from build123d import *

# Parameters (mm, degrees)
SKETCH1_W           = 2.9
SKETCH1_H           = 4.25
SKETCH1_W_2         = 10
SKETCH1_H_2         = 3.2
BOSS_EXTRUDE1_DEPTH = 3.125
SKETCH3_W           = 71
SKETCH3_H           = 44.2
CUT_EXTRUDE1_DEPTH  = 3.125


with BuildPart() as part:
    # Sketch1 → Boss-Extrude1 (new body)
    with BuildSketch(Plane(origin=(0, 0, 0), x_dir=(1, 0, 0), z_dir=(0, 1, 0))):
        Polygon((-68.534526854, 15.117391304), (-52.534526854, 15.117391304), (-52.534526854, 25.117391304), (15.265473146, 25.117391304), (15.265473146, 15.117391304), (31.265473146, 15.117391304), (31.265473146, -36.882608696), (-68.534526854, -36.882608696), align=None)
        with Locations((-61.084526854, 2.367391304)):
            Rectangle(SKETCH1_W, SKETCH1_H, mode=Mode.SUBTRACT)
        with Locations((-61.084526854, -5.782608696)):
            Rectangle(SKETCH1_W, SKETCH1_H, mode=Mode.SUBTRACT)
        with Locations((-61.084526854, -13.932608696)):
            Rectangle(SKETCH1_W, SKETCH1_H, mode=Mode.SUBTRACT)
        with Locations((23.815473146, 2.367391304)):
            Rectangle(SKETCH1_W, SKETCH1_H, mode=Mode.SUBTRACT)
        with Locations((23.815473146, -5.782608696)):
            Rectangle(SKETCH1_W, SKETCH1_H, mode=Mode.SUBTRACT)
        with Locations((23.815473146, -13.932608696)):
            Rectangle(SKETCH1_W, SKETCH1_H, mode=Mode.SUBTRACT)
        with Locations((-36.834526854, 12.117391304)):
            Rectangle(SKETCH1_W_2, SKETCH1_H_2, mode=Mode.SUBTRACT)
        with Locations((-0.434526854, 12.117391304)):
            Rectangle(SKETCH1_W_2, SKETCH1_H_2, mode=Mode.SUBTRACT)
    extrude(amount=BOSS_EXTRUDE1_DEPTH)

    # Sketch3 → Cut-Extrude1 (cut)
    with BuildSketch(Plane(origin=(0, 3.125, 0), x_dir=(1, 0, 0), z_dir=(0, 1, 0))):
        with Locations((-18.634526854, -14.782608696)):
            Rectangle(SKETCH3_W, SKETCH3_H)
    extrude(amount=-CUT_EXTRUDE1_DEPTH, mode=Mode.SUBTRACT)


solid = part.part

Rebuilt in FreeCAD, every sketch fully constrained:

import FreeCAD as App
import Part
import Sketcher

V = App.Vector
Q = App.Units.Quantity

doc = App.newDocument("Part")
body = doc.addObject("PartDesign::Body", "Body")

# Sketch on XZ plane
sketch1 = doc.addObject("Sketcher::SketchObject", "Sketch")
body.addObject(sketch1)
sketch1.AttachmentSupport = (doc.XZ_Plane, [""])
sketch1.MapMode = "FlatFace"
sketch1.addGeometry(Part.LineSegment(V(-52.5, -15.1, 0), V(-68.5, -15.1, 0)), False)
sketch1.addGeometry(Part.LineSegment(V(-68.5, -15.1, 0), V(-68.5, 36.9, 0)), False)
sketch1.addGeometry(Part.LineSegment(V(-68.5, 36.9, 0), V(31.3, 36.9, 0)), False)
sketch1.addGeometry(Part.LineSegment(V(31.3, 36.9, 0), V(31.3, -15.1, 0)), False)
sketch1.addGeometry(Part.LineSegment(V(31.3, -15.1, 0), V(15.3, -15.1, 0)), False)
sketch1.addGeometry(Part.LineSegment(V(15.3, -15.1, 0), V(15.3, -25.1, 0)), False)
sketch1.addGeometry(Part.LineSegment(V(15.3, -25.1, 0), V(-52.5, -25.1, 0)), False)
sketch1.addGeometry(Part.LineSegment(V(-52.5, -25.1, 0), V(-52.5, -15.1, 0)), False)
sketch1.addGeometry(Part.LineSegment(V(22.4, 16.1, 0), V(22.4, 11.8, 0)), False)
sketch1.addGeometry(Part.LineSegment(V(22.4, 11.8, 0), V(25.3, 11.8, 0)), False)
sketch1.addGeometry(Part.LineSegment(V(25.3, 11.8, 0), V(25.3, 16.1, 0)), False)
sketch1.addGeometry(Part.LineSegment(V(25.3, 16.1, 0), V(22.4, 16.1, 0)), False)
sketch1.addGeometry(Part.LineSegment(V(22.4, 7.9, 0), V(22.4, 3.7, 0)), False)
sketch1.addGeometry(Part.LineSegment(V(22.4, 3.7, 0), V(25.3, 3.7, 0)), False)
sketch1.addGeometry(Part.LineSegment(V(25.3, 3.7, 0), V(25.3, 7.9, 0)), False)
sketch1.addGeometry(Part.LineSegment(V(25.3, 7.9, 0), V(22.4, 7.9, 0)), False)
sketch1.addGeometry(Part.LineSegment(V(-62.5, 16.1, 0), V(-62.5, 11.8, 0)), False)
sketch1.addGeometry(Part.LineSegment(V(-62.5, 11.8, 0), V(-59.6, 11.8, 0)), False)
sketch1.addGeometry(Part.LineSegment(V(-59.6, 11.8, 0), V(-59.6, 16.1, 0)), False)
sketch1.addGeometry(Part.LineSegment(V(-59.6, 16.1, 0), V(-62.5, 16.1, 0)), False)
sketch1.addGeometry(Part.LineSegment(V(-62.5, 7.9, 0), V(-62.5, 3.7, 0)), False)
sketch1.addGeometry(Part.LineSegment(V(-62.5, 3.7, 0), V(-59.6, 3.7, 0)), False)
sketch1.addGeometry(Part.LineSegment(V(-59.6, 3.7, 0), V(-59.6, 7.9, 0)), False)
sketch1.addGeometry(Part.LineSegment(V(-59.6, 7.9, 0), V(-62.5, 7.9, 0)), False)
sketch1.addGeometry(Part.LineSegment(V(22.4, -0.2, 0), V(22.4, -4.5, 0)), False)
sketch1.addGeometry(Part.LineSegment(V(22.4, -4.5, 0), V(25.3, -4.5, 0)), False)
sketch1.addGeometry(Part.LineSegment(V(25.3, -4.5, 0), V(25.3, -0.2, 0)), False)
sketch1.addGeometry(Part.LineSegment(V(25.3, -0.2, 0), V(22.4, -0.2, 0)), False)
sketch1.addGeometry(Part.LineSegment(V(-5.4, -10.5, 0), V(-5.4, -13.7, 0)), False)
sketch1.addGeometry(Part.LineSegment(V(-5.4, -13.7, 0), V(4.6, -13.7, 0)), False)
sketch1.addGeometry(Part.LineSegment(V(4.6, -13.7, 0), V(4.6, -10.5, 0)), False)
sketch1.addGeometry(Part.LineSegment(V(4.6, -10.5, 0), V(-5.4, -10.5, 0)), False)
sketch1.addGeometry(Part.LineSegment(V(-62.5, -0.2, 0), V(-62.5, -4.5, 0)), False)
sketch1.addGeometry(Part.LineSegment(V(-62.5, -4.5, 0), V(-59.6, -4.5, 0)), False)
sketch1.addGeometry(Part.LineSegment(V(-59.6, -4.5, 0), V(-59.6, -0.2, 0)), False)
sketch1.addGeometry(Part.LineSegment(V(-59.6, -0.2, 0), V(-62.5, -0.2, 0)), False)
sketch1.addGeometry(Part.LineSegment(V(-41.8, -10.5, 0), V(-41.8, -13.7, 0)), False)
sketch1.addGeometry(Part.LineSegment(V(-41.8, -13.7, 0), V(-31.8, -13.7, 0)), False)
sketch1.addGeometry(Part.LineSegment(V(-31.8, -13.7, 0), V(-31.8, -10.5, 0)), False)
sketch1.addGeometry(Part.LineSegment(V(-31.8, -10.5, 0), V(-41.8, -10.5, 0)), False)
sketch1.addConstraint(Sketcher.Constraint("Coincident", 0, 2, 1, 1))
sketch1.addConstraint(Sketcher.Constraint("Coincident", 1, 2, 2, 1))
sketch1.addConstraint(Sketcher.Constraint("Coincident", 2, 2, 3, 1))
sketch1.addConstraint(Sketcher.Constraint("Coincident", 3, 2, 4, 1))
sketch1.addConstraint(Sketcher.Constraint("Coincident", 4, 2, 5, 1))
sketch1.addConstraint(Sketcher.Constraint("Coincident", 5, 2, 6, 1))
sketch1.addConstraint(Sketcher.Constraint("Coincident", 6, 2, 7, 1))
sketch1.addConstraint(Sketcher.Constraint("Coincident", 7, 2, 0, 1))
sketch1.addConstraint(Sketcher.Constraint("Coincident", 8, 2, 9, 1))
sketch1.addConstraint(Sketcher.Constraint("Coincident", 9, 2, 10, 1))
sketch1.addConstraint(Sketcher.Constraint("Coincident", 10, 2, 11, 1))
sketch1.addConstraint(Sketcher.Constraint("Coincident", 11, 2, 8, 1))
sketch1.addConstraint(Sketcher.Constraint("Coincident", 12, 2, 13, 1))
sketch1.addConstraint(Sketcher.Constraint("Coincident", 13, 2, 14, 1))
sketch1.addConstraint(Sketcher.Constraint("Coincident", 14, 2, 15, 1))
sketch1.addConstraint(Sketcher.Constraint("Coincident", 15, 2, 12, 1))
sketch1.addConstraint(Sketcher.Constraint("Coincident", 16, 2, 17, 1))
sketch1.addConstraint(Sketcher.Constraint("Coincident", 17, 2, 18, 1))
sketch1.addConstraint(Sketcher.Constraint("Coincident", 18, 2, 19, 1))
sketch1.addConstraint(Sketcher.Constraint("Coincident", 19, 2, 16, 1))
sketch1.addConstraint(Sketcher.Constraint("Coincident", 20, 2, 21, 1))
sketch1.addConstraint(Sketcher.Constraint("Coincident", 21, 2, 22, 1))
sketch1.addConstraint(Sketcher.Constraint("Coincident", 22, 2, 23, 1))
sketch1.addConstraint(Sketcher.Constraint("Coincident", 23, 2, 20, 1))
sketch1.addConstraint(Sketcher.Constraint("Coincident", 24, 2, 25, 1))
sketch1.addConstraint(Sketcher.Constraint("Coincident", 25, 2, 26, 1))
sketch1.addConstraint(Sketcher.Constraint("Coincident", 26, 2, 27, 1))
sketch1.addConstraint(Sketcher.Constraint("Coincident", 27, 2, 24, 1))
sketch1.addConstraint(Sketcher.Constraint("Coincident", 28, 2, 29, 1))
sketch1.addConstraint(Sketcher.Constraint("Coincident", 29, 2, 30, 1))
sketch1.addConstraint(Sketcher.Constraint("Coincident", 30, 2, 31, 1))
sketch1.addConstraint(Sketcher.Constraint("Coincident", 31, 2, 28, 1))
sketch1.addConstraint(Sketcher.Constraint("Coincident", 32, 2, 33, 1))
sketch1.addConstraint(Sketcher.Constraint("Coincident", 33, 2, 34, 1))
sketch1.addConstraint(Sketcher.Constraint("Coincident", 34, 2, 35, 1))
sketch1.addConstraint(Sketcher.Constraint("Coincident", 35, 2, 32, 1))
sketch1.addConstraint(Sketcher.Constraint("Coincident", 36, 2, 37, 1))
sketch1.addConstraint(Sketcher.Constraint("Coincident", 37, 2, 38, 1))
sketch1.addConstraint(Sketcher.Constraint("Coincident", 38, 2, 39, 1))
sketch1.addConstraint(Sketcher.Constraint("Coincident", 39, 2, 36, 1))
sketch1.addConstraint(Sketcher.Constraint("Horizontal", 0))
sketch1.addConstraint(Sketcher.Constraint("Vertical", 1))
sketch1.addConstraint(Sketcher.Constraint("Horizontal", 2))
sketch1.addConstraint(Sketcher.Constraint("Vertical", 3))
sketch1.addConstraint(Sketcher.Constraint("Horizontal", 4))
sketch1.addConstraint(Sketcher.Constraint("Vertical", 5))
sketch1.addConstraint(Sketcher.Constraint("Horizontal", 6))
sketch1.addConstraint(Sketcher.Constraint("Vertical", 7))
sketch1.addConstraint(Sketcher.Constraint("Vertical", 8))
sketch1.addConstraint(Sketcher.Constraint("Horizontal", 9))
sketch1.addConstraint(Sketcher.Constraint("Vertical", 10))
sketch1.addConstraint(Sketcher.Constraint("Horizontal", 11))
sketch1.addConstraint(Sketcher.Constraint("Vertical", 12))
sketch1.addConstraint(Sketcher.Constraint("Horizontal", 13))
sketch1.addConstraint(Sketcher.Constraint("Vertical", 14))
sketch1.addConstraint(Sketcher.Constraint("Horizontal", 15))
sketch1.addConstraint(Sketcher.Constraint("Vertical", 16))
sketch1.addConstraint(Sketcher.Constraint("Horizontal", 17))
sketch1.addConstraint(Sketcher.Constraint("Vertical", 18))
sketch1.addConstraint(Sketcher.Constraint("Horizontal", 19))
sketch1.addConstraint(Sketcher.Constraint("Vertical", 20))
sketch1.addConstraint(Sketcher.Constraint("Horizontal", 21))
sketch1.addConstraint(Sketcher.Constraint("Vertical", 22))
sketch1.addConstraint(Sketcher.Constraint("Horizontal", 23))
sketch1.addConstraint(Sketcher.Constraint("Vertical", 24))
sketch1.addConstraint(Sketcher.Constraint("Horizontal", 25))
sketch1.addConstraint(Sketcher.Constraint("Vertical", 26))
sketch1.addConstraint(Sketcher.Constraint("Horizontal", 27))
sketch1.addConstraint(Sketcher.Constraint("Vertical", 28))
sketch1.addConstraint(Sketcher.Constraint("Horizontal", 29))
sketch1.addConstraint(Sketcher.Constraint("Vertical", 30))
sketch1.addConstraint(Sketcher.Constraint("Horizontal", 31))
sketch1.addConstraint(Sketcher.Constraint("Vertical", 32))
sketch1.addConstraint(Sketcher.Constraint("Horizontal", 33))
sketch1.addConstraint(Sketcher.Constraint("Vertical", 34))
sketch1.addConstraint(Sketcher.Constraint("Horizontal", 35))
sketch1.addConstraint(Sketcher.Constraint("Vertical", 36))
sketch1.addConstraint(Sketcher.Constraint("Horizontal", 37))
sketch1.addConstraint(Sketcher.Constraint("Vertical", 38))
sketch1.addConstraint(Sketcher.Constraint("Horizontal", 39))
sketch1.addConstraint(Sketcher.Constraint("Horizontal", 0, 2, 3, 2))
sketch1.addConstraint(Sketcher.Constraint("Horizontal", 9, 2, 16, 2))
sketch1.addConstraint(Sketcher.Constraint("Horizontal", 11, 2, 18, 2))
sketch1.addConstraint(Sketcher.Constraint("Horizontal", 13, 2, 20, 2))
sketch1.addConstraint(Sketcher.Constraint("Horizontal", 15, 2, 22, 2))
sketch1.addConstraint(Sketcher.Constraint("Horizontal", 25, 2, 32, 2))
sketch1.addConstraint(Sketcher.Constraint("Horizontal", 27, 2, 34, 2))
sketch1.addConstraint(Sketcher.Constraint("Horizontal", 29, 2, 36, 2))
sketch1.addConstraint(Sketcher.Constraint("Horizontal", 31, 2, 38, 2))
sketch1.addConstraint(Sketcher.Constraint("Vertical", 11, 2, 12, 2))
sketch1.addConstraint(Sketcher.Constraint("Vertical", 10, 2, 13, 2))
sketch1.addConstraint(Sketcher.Constraint("Vertical", 19, 2, 20, 2))
sketch1.addConstraint(Sketcher.Constraint("Vertical", 18, 2, 21, 2))
sketch1.addConstraint(Sketcher.Constraint("Vertical", 15, 2, 24, 2))
sketch1.addConstraint(Sketcher.Constraint("Vertical", 14, 2, 25, 2))
sketch1.addConstraint(Sketcher.Constraint("Vertical", 23, 2, 32, 2))
sketch1.addConstraint(Sketcher.Constraint("Vertical", 22, 2, 33, 2))
sketch1.addConstraint(Sketcher.Constraint("Equal", 0, 4))
sketch1.addConstraint(Sketcher.Constraint("Equal", 15, 17))
sketch1.addConstraint(Sketcher.Constraint("Equal", 31, 37))
sketch1.addConstraint(Sketcher.Constraint("Equal", 39, 5))
sketch1.addConstraint(Sketcher.Constraint("Equal", 10, 12))
sketch1.addConstraint(Sketcher.Constraint("Equal", 22, 24))
sketch1.addConstraint(Sketcher.Constraint("DistanceX", 0, 2, 0, 1, Q("16 mm")))
sketch1.addConstraint(Sketcher.Constraint("DistanceX", 29, 1, 29, 2, Q("10 mm")))
sketch1.addConstraint(Sketcher.Constraint("DistanceY", 1, 1, 1, 2, Q("52 mm")))
sketch1.addConstraint(Sketcher.Constraint("DistanceX", 2, 1, 2, 2, Q("99.8 mm")))
sketch1.addConstraint(Sketcher.Constraint("DistanceX", 9, 1, 9, 2, Q("2.9 mm")))
sketch1.addConstraint(Sketcher.Constraint("DistanceY", 28, 2, 28, 1, Q("3.2 mm")))
sketch1.addConstraint(Sketcher.Constraint("DistanceX", 9, 2, 2, 2, Q("6 mm")))
sketch1.addConstraint(Sketcher.Constraint("DistanceX", 1, 2, 16, 2, Q("6 mm")))
sketch1.addConstraint(Sketcher.Constraint("DistanceY", 8, 2, 8, 1, Q("4.25 mm")))
sketch1.addConstraint(Sketcher.Constraint("DistanceY", 12, 2, 11, 2, Q("12.4 mm")))
sketch1.addConstraint(Sketcher.Constraint("DistanceY", 24, 2, 15, 2, Q("12.4 mm")))
sketch1.addConstraint(Sketcher.Constraint("DistanceX", 28, 2, 4, 2, Q("20.7 mm")))
sketch1.addConstraint(Sketcher.Constraint("DistanceY", 4, 2, 28, 2, Q("1.4 mm")))
sketch1.addConstraint(Sketcher.Constraint("DistanceX", 7, 2, 36, 2, Q("10.7 mm")))
sketch1.addConstraint(Sketcher.Constraint("DistanceY", 8, 2, 2, 2, Q("25.075 mm")))
sketch1.addConstraint(Sketcher.Constraint("DistanceY", 0, 2, -1, 1, Q("15.117391 mm")))
sketch1.addConstraint(Sketcher.Constraint("DistanceX", 0, 2, -1, 1, Q("68.534527 mm")))
pad1 = doc.addObject("PartDesign::Pad", "Pad")
body.addObject(pad1)
pad1.Profile = sketch1
pad1.Length = 3.125
pad1.Reversed = True

# Sketch on XZ plane
sketch2 = doc.addObject("Sketcher::SketchObject", "Sketch001")
body.addObject(sketch2)
sketch2.AttachmentSupport = (doc.XZ_Plane, [""])
sketch2.MapMode = "FlatFace"
sketch2.AttachmentOffset = App.Placement(V(0, 0, -3.125), App.Rotation())
sketch2.addGeometry(Part.LineSegment(V(-54, -7, 0), V(-54, 37, 0)), False)
sketch2.addGeometry(Part.LineSegment(V(-54, 37, 0), V(17, 37, 0)), False)
sketch2.addGeometry(Part.LineSegment(V(17, 37, 0), V(17, -7, 0)), False)
sketch2.addGeometry(Part.LineSegment(V(17, -7, 0), V(-54, -7, 0)), False)
sketch2.addConstraint(Sketcher.Constraint("Coincident", 0, 2, 1, 1))
sketch2.addConstraint(Sketcher.Constraint("Coincident", 1, 2, 2, 1))
sketch2.addConstraint(Sketcher.Constraint("Coincident", 2, 2, 3, 1))
sketch2.addConstraint(Sketcher.Constraint("Coincident", 3, 2, 0, 1))
sketch2.addConstraint(Sketcher.Constraint("Vertical", 0))
sketch2.addConstraint(Sketcher.Constraint("Horizontal", 1))
sketch2.addConstraint(Sketcher.Constraint("Vertical", 2))
sketch2.addConstraint(Sketcher.Constraint("Horizontal", 3))
sketch2.addConstraint(Sketcher.Constraint("DistanceX", 1, 1, 1, 2, Q("71 mm")))
sketch2.addConstraint(Sketcher.Constraint("DistanceY", 0, 1, 0, 2, Q("44.2 mm")))
sketch2.addConstraint(Sketcher.Constraint("DistanceY", -1, 1, 0, 2, Q("36.882609 mm")))
sketch2.addConstraint(Sketcher.Constraint("DistanceX", 0, 2, -1, 1, Q("54.134527 mm")))
pocket1 = doc.addObject("PartDesign::Pocket", "Pocket")
body.addObject(pocket1)
pocket1.Profile = sketch2
pocket1.Length = 3.125
pocket1.Reversed = True

doc.recompute()
